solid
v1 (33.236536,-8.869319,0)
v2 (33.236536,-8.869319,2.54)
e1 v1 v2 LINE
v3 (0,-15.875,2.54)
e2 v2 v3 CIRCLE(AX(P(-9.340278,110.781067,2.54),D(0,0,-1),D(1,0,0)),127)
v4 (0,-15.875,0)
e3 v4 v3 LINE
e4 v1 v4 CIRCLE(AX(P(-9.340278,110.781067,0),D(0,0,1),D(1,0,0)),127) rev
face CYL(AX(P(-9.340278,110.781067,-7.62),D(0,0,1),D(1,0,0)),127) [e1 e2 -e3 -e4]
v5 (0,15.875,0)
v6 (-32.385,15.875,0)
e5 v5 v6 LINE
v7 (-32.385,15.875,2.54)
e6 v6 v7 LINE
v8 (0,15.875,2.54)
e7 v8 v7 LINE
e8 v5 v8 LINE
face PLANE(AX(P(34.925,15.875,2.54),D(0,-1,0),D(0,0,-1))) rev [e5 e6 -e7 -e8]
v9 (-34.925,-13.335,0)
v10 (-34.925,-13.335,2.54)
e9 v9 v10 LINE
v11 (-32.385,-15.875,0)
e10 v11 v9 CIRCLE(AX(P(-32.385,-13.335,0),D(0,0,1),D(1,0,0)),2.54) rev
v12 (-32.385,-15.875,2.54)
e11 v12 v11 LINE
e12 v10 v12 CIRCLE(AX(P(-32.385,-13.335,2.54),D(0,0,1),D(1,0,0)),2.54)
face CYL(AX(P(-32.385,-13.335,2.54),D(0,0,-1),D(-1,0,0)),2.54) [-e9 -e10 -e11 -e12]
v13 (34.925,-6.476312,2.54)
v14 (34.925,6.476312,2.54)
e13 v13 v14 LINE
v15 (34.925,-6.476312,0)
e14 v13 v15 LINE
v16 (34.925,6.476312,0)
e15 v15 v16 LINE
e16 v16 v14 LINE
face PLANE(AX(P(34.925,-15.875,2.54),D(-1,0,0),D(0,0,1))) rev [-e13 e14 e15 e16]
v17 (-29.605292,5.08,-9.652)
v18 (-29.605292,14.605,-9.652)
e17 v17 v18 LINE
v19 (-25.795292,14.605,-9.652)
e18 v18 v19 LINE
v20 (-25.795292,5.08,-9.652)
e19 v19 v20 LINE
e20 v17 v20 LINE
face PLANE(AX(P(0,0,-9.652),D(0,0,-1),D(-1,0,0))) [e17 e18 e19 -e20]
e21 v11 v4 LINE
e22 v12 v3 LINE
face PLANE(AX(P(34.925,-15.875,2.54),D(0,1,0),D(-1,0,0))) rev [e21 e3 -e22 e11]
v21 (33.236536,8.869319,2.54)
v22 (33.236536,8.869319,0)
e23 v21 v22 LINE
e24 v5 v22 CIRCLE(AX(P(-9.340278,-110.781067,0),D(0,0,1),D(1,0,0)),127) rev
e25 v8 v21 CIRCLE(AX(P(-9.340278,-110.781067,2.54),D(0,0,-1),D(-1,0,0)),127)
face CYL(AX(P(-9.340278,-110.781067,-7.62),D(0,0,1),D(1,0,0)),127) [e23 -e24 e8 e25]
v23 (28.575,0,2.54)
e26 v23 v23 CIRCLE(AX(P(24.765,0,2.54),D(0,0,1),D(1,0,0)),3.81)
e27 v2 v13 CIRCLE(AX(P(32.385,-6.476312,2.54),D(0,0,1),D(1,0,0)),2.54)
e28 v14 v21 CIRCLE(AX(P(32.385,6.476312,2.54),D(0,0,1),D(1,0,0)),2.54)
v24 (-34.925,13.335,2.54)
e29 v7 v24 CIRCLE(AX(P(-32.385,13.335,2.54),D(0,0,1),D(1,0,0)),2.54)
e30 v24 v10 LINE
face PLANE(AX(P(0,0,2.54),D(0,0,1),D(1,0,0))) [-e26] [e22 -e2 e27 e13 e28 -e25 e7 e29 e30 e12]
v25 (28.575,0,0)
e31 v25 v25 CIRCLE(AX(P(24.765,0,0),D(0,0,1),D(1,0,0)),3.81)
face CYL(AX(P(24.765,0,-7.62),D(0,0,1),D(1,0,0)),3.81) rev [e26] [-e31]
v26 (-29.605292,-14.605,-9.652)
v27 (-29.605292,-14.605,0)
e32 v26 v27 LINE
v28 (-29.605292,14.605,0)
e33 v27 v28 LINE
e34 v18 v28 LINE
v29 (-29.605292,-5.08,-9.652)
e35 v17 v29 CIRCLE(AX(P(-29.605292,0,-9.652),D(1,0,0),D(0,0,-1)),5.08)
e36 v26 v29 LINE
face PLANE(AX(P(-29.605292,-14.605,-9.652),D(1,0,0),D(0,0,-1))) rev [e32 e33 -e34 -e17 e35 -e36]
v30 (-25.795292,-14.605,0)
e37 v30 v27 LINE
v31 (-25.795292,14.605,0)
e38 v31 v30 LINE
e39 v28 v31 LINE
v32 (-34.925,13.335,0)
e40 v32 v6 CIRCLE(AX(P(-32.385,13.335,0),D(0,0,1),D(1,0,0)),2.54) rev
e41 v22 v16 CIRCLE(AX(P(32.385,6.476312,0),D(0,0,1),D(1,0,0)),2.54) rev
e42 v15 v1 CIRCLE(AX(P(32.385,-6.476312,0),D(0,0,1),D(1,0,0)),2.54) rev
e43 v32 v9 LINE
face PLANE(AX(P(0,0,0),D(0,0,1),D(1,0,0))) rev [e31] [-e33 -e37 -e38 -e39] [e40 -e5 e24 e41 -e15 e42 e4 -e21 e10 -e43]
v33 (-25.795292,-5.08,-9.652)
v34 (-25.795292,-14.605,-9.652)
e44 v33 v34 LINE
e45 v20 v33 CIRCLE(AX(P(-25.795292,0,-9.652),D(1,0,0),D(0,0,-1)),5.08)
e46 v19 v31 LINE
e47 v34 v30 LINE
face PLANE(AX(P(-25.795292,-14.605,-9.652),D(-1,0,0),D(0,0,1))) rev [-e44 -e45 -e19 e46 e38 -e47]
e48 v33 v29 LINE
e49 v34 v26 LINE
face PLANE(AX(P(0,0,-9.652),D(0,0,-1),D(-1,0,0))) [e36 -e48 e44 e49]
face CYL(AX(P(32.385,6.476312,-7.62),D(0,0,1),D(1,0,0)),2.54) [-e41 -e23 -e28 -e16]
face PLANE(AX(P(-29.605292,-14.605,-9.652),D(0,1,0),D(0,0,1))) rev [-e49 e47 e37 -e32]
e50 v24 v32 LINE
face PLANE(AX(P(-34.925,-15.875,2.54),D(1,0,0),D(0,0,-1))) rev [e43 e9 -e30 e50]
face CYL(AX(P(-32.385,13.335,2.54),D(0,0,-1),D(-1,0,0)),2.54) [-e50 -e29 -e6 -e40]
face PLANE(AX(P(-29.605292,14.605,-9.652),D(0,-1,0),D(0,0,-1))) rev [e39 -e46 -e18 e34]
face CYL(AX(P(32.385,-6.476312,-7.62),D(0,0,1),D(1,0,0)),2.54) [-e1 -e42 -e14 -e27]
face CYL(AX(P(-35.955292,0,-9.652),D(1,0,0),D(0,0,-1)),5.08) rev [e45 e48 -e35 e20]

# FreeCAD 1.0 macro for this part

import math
import FreeCAD as App
import Part
import Sketcher
from FreeCAD import Vector
Q = App.Units.Quantity


def edges_at(feature, points):
    """Names of the edges that pass closest to the given points."""
    edges = feature.Shape.Edges
    near = lambda p: min(range(len(edges)), key=lambda i: edges[i].distToShape(Part.Vertex(*p))[0])
    return sorted({f"Edge{near(p) + 1}" for p in points})

doc = App.newDocument("Part")
body = doc.addObject("PartDesign::Body", "Body")

sketch1 = body.newObject("Sketcher::SketchObject", "Sketch")
sketch1.AttachmentSupport = (doc.getObject("XY_Plane"), [""])
sketch1.MapMode = "FlatFace"
sketch1.addGeometry([
    Part.LineSegment(Vector(-35, 16, 0), Vector(-35, -16, 0)),
    Part.LineSegment(Vector(-35, -16, 0), Vector(35, -16, 0)),
    Part.LineSegment(Vector(35, -16, 0), Vector(35, 16, 0)),
    Part.LineSegment(Vector(35, 16, 0), Vector(-35, 16, 0)),
], False)
sketch1.addConstraint([
    Sketcher.Constraint("Coincident", 0, 2, 1, 1),
    Sketcher.Constraint("Coincident", 1, 2, 2, 1),
    Sketcher.Constraint("Coincident", 2, 2, 3, 1),
    Sketcher.Constraint("Coincident", 3, 2, 0, 1),
    Sketcher.Constraint("Vertical", 0),
    Sketcher.Constraint("Horizontal", 1),
    Sketcher.Constraint("Vertical", 2),
    Sketcher.Constraint("Horizontal", 3),
    Sketcher.Constraint("Symmetric", 0, 2, 2, 2, -1, 1),
    Sketcher.Constraint("DistanceX", 1, 1, 1, 2, Q("2.75 in")),
    Sketcher.Constraint("DistanceY", 0, 2, 0, 1, Q("1.25 in")),
])
pad1 = body.newObject("PartDesign::Pad", "Pad")
pad1.Profile = sketch1
pad1.Length = Q("0.1 in")

sketch2 = body.newObject("Sketcher::SketchObject", "Sketch001")
sketch2.AttachmentSupport = (doc.getObject("XY_Plane"), [""])
sketch2.MapMode = "FlatFace"
sketch2.addGeometry([
    Part.LineSegment(Vector(-25.8, 14.6, 0), Vector(-25.8, -14.6, 0)),
    Part.LineSegment(Vector(-25.8, -14.6, 0), Vector(-29.6, -14.6, 0)),
    Part.LineSegment(Vector(-29.6, -14.6, 0), Vector(-29.6, 14.6, 0)),
    Part.LineSegment(Vector(-29.6, 14.6, 0), Vector(-25.8, 14.6, 0)),
], False)
sketch2.addConstraint([
    Sketcher.Constraint("Coincident", 0, 2, 1, 1),
    Sketcher.Constraint("Coincident", 1, 2, 2, 1),
    Sketcher.Constraint("Coincident", 2, 2, 3, 1),
    Sketcher.Constraint("Coincident", 3, 2, 0, 1),
    Sketcher.Constraint("Vertical", 0),
    Sketcher.Constraint("Horizontal", 1),
    Sketcher.Constraint("Vertical", 2),
    Sketcher.Constraint("Horizontal", 3),
    Sketcher.Constraint("DistanceX", 1, 2, 1, 1, Q("0.15 in")),
    Sketcher.Constraint("DistanceY", 0, 2, 0, 1, Q("1.15 in")),
    Sketcher.Constraint("DistanceY", 0, 2, -1, 1, Q("0.575 in")),
    Sketcher.Constraint("DistanceX", 0, 2, -1, 1, Q("25.795292 mm")),
])
pad2 = body.newObject("PartDesign::Pad", "Pad001")
pad2.Profile = sketch2
pad2.Length = Q("0.38 in")
pad2.Reversed = True

sketch3 = body.newObject("Sketcher::SketchObject", "Sketch002")
sketch3.AttachmentSupport = (doc.getObject("YZ_Plane"), [""])
sketch3.MapMode = "FlatFace"
sketch3.AttachmentOffset = App.Placement(Vector(0, 0, -25.795292), App.Rotation())
sketch3.addGeometry(Part.Circle(Vector(0, -10, 0), Vector(0, 0, 1), 5), False)
sketch3.addConstraint([
    Sketcher.Constraint("PointOnObject", 0, 3, -2),
    Sketcher.Constraint("Diameter", 0, Q("0.4 in")),
    Sketcher.Constraint("DistanceY", 0, 3, -1, 1, Q("0.38 in")),
])
pocket1 = body.newObject("PartDesign::Pocket", "Pocket")
pocket1.Profile = sketch3
pocket1.Length = Q("0.4 in")

sketch4 = body.newObject("Sketcher::SketchObject", "Sketch003")
sketch4.AttachmentSupport = (doc.getObject("XY_Plane"), [""])
sketch4.MapMode = "FlatFace"
sketch4.AttachmentOffset = App.Placement(Vector(0, 0, 0.1 * 25.4), App.Rotation())
sketch4.addGeometry([
    Part.LineSegment(Vector(35, 16, 0), Vector(0, 16, 0)),
    Part.ArcOfCircle(Part.Circle(Vector(-9, -111, 0), Vector(0, 0, 1), 127), math.radians(69.6), math.radians(85.78)),
    Part.LineSegment(Vector(35, 8, 0), Vector(35, 16, 0)),
    Part.LineSegment(Vector(0, -16, 0), Vector(35, -16, 0)),
    Part.LineSegment(Vector(35, -16, 0), Vector(35, -8, 0)),
    Part.ArcOfCircle(Part.Circle(Vector(-9, 111, 0), Vector(0, 0, 1), 127), math.radians(-85.78), math.radians(-69.6)),
], False)
sketch4.addConstraint([
    Sketcher.Constraint("Coincident", 0, 2, 1, 2),
    Sketcher.Constraint("Coincident", 1, 1, 2, 1),
    Sketcher.Constraint("Coincident", 2, 2, 0, 1),
    Sketcher.Constraint("Coincident", 3, 2, 4, 1),
    Sketcher.Constraint("Coincident", 4, 2, 5, 2),
    Sketcher.Constraint("Coincident", 5, 1, 3, 1),
    Sketcher.Constraint("Horizontal", 0),
    Sketcher.Constraint("Vertical", 2),
    Sketcher.Constraint("Horizontal", 3),
    Sketcher.Constraint("Vertical", 4),
    Sketcher.Constraint("Equal", 1, 5),
    Sketcher.Constraint("Symmetric", 0, 2, 5, 1, -1, 1),
    Sketcher.Constraint("Symmetric", 1, 3, 5, 3, -1),
    Sketcher.Constraint("Vertical", 2, 2, 3, 2),
    Sketcher.Constraint("Radius", 1, Q("5 in")),
    Sketcher.Constraint("DistanceY", 2, 1, 2, 2, Q("0.3 in")),
    Sketcher.Constraint("DistanceX", 0, 2, 0, 1, Q("1.375 in")),
    Sketcher.Constraint("DistanceY", 3, 2, 1, 1, Q("0.95 in")),
])
pocket2 = body.newObject("PartDesign::Pocket", "Pocket001")
pocket2.Profile = sketch4
pocket2.Length = Q("0.4 in")
doc.recompute()

fillet = body.newObject("PartDesign::Fillet", "Fillet")
fillet.Base = (pocket2, edges_at(pocket2, [(-34.925, 15.875, 1.27), (-34.925, -15.875, 1.27)]))
fillet.Radius = Q("0.1 in")
doc.recompute()

fillet2 = body.newObject("PartDesign::Fillet", "Fillet001")
fillet2.Base = (fillet, edges_at(fillet, [(34.925, 8.255, 1.27), (34.925, -8.255, 1.27)]))
fillet2.Radius = Q("0.1 in")

sketch5 = body.newObject("Sketcher::SketchObject", "Sketch004")
sketch5.AttachmentSupport = (doc.getObject("XY_Plane"), [""])
sketch5.MapMode = "FlatFace"
sketch5.AttachmentOffset = App.Placement(Vector(0, 0, 0.1 * 25.4), App.Rotation())
sketch5.addGeometry(Part.Circle(Vector(24.8, 0, 0), Vector(0, 0, 1), 3.8), False)
sketch5.addConstraint([
    Sketcher.Constraint("PointOnObject", 0, 3, -1),
    Sketcher.Constraint("Diameter", 0, Q("0.3 in")),
    Sketcher.Constraint("DistanceX", -1, 1, 0, 3, Q("0.975 in")),
])
pocket3 = body.newObject("PartDesign::Pocket", "Pocket002")
pocket3.Profile = sketch5
pocket3.Length = Q("0.4 in")

doc.recompute()
